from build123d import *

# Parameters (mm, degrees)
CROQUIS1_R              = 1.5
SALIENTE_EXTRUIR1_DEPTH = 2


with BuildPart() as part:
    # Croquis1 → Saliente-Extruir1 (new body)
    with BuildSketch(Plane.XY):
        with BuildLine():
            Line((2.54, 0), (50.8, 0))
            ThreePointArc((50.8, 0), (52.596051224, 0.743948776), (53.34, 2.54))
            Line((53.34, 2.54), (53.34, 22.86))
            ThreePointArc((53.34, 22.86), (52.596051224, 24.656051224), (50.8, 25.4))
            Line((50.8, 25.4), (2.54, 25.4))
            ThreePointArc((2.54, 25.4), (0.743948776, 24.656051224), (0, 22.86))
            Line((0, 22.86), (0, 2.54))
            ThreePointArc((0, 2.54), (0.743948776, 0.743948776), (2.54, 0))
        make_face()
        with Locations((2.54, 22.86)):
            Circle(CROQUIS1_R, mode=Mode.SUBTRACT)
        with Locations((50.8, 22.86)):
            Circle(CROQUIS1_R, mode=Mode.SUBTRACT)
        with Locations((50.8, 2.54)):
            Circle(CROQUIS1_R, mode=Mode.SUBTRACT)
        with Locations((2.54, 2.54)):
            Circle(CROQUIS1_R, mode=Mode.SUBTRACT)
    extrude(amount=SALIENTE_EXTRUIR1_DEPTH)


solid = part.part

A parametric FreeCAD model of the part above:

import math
import FreeCAD as App
import Part
import Sketcher
Q = App.Units.Quantity

doc = App.newDocument("Part")
body = doc.addObject("PartDesign::Body", "Body")

# Sketch on XY plane
sketch1 = body.newObject("Sketcher::SketchObject", "Sketch")
sketch1.AttachmentSupport = (doc.getObject("XY_Plane"), [""])
sketch1.MapMode = "FlatFace"
sketch1.addGeometry([
    Part.LineSegment(App.Vector(2.5, 0, 0), App.Vector(50.8, 0, 0)),  # 0
    Part.ArcOfCircle(Part.Circle(App.Vector(50.8, 2.5, 0), App.Vector(0, 0, 1), 2.5), math.radians(-90), math.radians(0)),  # 1
    Part.LineSegment(App.Vector(53.3, 2.5, 0), App.Vector(53.3, 22.9, 0)),  # 2
    Part.ArcOfCircle(Part.Circle(App.Vector(50.8, 22.9, 0), App.Vector(0, 0, 1), 2.5), math.radians(0), math.radians(90)),  # 3
    Part.LineSegment(App.Vector(50.8, 25.4, 0), App.Vector(2.5, 25.4, 0)),  # 4
    Part.ArcOfCircle(Part.Circle(App.Vector(2.5, 22.9, 0), App.Vector(0, 0, 1), 2.5), math.radians(90), math.radians(180)),  # 5
    Part.LineSegment(App.Vector(0, 22.9, 0), App.Vector(0, 2.5, 0)),  # 6
    Part.ArcOfCircle(Part.Circle(App.Vector(2.5, 2.5, 0), App.Vector(0, 0, 1), 2.5), math.radians(-180), math.radians(-90)),  # 7
    Part.Circle(App.Vector(2.5, 2.5, 0), App.Vector(0, 0, 1), 1.5),  # 8
    Part.Circle(App.Vector(50.8, 2.5, 0), App.Vector(0, 0, 1), 1.5),  # 9
    Part.Circle(App.Vector(2.5, 22.9, 0), App.Vector(0, 0, 1), 1.5),  # 10
    Part.Circle(App.Vector(50.8, 22.9, 0), App.Vector(0, 0, 1), 1.5),  # 11
], False)
sketch1.addConstraint([
    Sketcher.Constraint("Tangent", 0, 2, 1, 1),
    Sketcher.Constraint("Tangent", 1, 2, 2, 1),
    Sketcher.Constraint("Tangent", 2, 2, 3, 1),
    Sketcher.Constraint("Tangent", 3, 2, 4, 1),
    Sketcher.Constraint("Tangent", 4, 2, 5, 1),
    Sketcher.Constraint("Tangent", 5, 2, 6, 1),
    Sketcher.Constraint("Tangent", 6, 2, 7, 1),
    Sketcher.Constraint("Tangent", 7, 2, 0, 1),
    Sketcher.Constraint("Horizontal", 0),
    Sketcher.Constraint("Vertical", 2),
    Sketcher.Constraint("Horizontal", 4),
    Sketcher.Constraint("Vertical", 6),
    Sketcher.Constraint("Coincident", 8, 3, 7, 3),
    Sketcher.Constraint("Coincident", 9, 3, 1, 3),
    Sketcher.Constraint("Coincident", 10, 3, 5, 3),
    Sketcher.Constraint("Coincident", 11, 3, 3, 3),
    Sketcher.Constraint("Equal", 1, 3),
    Sketcher.Constraint("Equal", 3, 5),
    Sketcher.Constraint("Equal", 5, 7),
    Sketcher.Constraint("Equal", 8, 9),
    Sketcher.Constraint("Equal", 9, 10),
    Sketcher.Constraint("Equal", 10, 11),
    Sketcher.Constraint("PointOnObject", 0, 2, -1),
    Sketcher.Constraint("PointOnObject", 5, 2, -2),
    Sketcher.Constraint("Radius", 1, Q("0.1 in")),
    Sketcher.Constraint("DistanceX", 0, 1, 0, 2, Q("1.9 in")),
    Sketcher.Constraint("DistanceY", 2, 1, 2, 2, Q("0.8 in")),
    Sketcher.Constraint("Diameter", 8, Q("3 mm")),
])
pad1 = body.newObject("PartDesign::Pad", "Pad")
pad1.Profile = sketch1
pad1.Length = 2

doc.recompute()
